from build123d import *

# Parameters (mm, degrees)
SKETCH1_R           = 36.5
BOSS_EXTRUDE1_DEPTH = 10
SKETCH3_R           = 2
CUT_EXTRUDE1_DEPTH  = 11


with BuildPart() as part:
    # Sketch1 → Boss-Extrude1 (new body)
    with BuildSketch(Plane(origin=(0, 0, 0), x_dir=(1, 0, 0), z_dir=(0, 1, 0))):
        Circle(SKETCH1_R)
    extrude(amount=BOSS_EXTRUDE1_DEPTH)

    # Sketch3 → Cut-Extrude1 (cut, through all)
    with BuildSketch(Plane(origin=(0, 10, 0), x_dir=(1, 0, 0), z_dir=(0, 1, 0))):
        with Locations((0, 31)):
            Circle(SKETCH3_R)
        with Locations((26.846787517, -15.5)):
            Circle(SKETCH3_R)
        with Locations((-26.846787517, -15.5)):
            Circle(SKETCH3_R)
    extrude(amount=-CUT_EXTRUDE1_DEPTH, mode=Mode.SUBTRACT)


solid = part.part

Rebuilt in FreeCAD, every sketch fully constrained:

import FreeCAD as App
import Part
import Sketcher

V = App.Vector
Q = App.Units.Quantity

doc = App.newDocument("Part")
body = doc.addObject("PartDesign::Body", "Body")

# Sketch on XZ plane
sketch1 = body.newObject("Sketcher::SketchObject", "Sketch")
sketch1.AttachmentSupport = (doc.getObject("XZ_Plane"), [""])
sketch1.MapMode = "FlatFace"
sketch1.addGeometry(Part.Circle(V(0, 0, 0), V(0, 0, 1), 36.5), False)
sketch1.addConstraint(Sketcher.Constraint("Coincident", 0, 3, -1, 1))
sketch1.addConstraint(Sketcher.Constraint("Diameter", 0, Q("73 mm")))
pad1 = body.newObject("PartDesign::Pad", "Pad")
pad1.Profile = sketch1
pad1.Length = 10
pad1.Reversed = True

# Sketch on XZ plane
sketch2 = body.newObject("Sketcher::SketchObject", "Sketch001")
sketch2.AttachmentSupport = (doc.getObject("XZ_Plane"), [""])
sketch2.MapMode = "FlatFace"
sketch2.AttachmentOffset = App.Placement(V(0, 0, -10), App.Rotation())
sketch2.addGeometry(Part.Circle(V(0, -31, 0), V(0, 0, 1), 2), False)
sketch2.addGeometry(Part.Circle(V(26.846788, 15.5, 0), V(0, 0, 1), 2), False)
sketch2.addGeometry(Part.Circle(V(-26.846788, 15.5, 0), V(0, 0, 1), 2), False)
sketch2.addConstraint(Sketcher.Constraint("Equal", 0, 1))
sketch2.addConstraint(Sketcher.Constraint("Equal", 1, 2))
sketch2.addConstraint(Sketcher.Constraint("Symmetric", 1, 3, 2, 3, -2))
sketch2.addConstraint(Sketcher.Constraint("PointOnObject", 0, 3, -2))
sketch2.addConstraint(Sketcher.Constraint("Diameter", 0, Q("4 mm")))
sketch2.addConstraint(Sketcher.Constraint("DistanceY", 0, 3, -1, 1, Q("31 mm")))
sketch2.addConstraint(Sketcher.Constraint("DistanceY", -1, 1, 1, 3, Q("15.5 mm")))
sketch2.addConstraint(Sketcher.Constraint("DistanceX", -1, 1, 1, 3, Q("26.846788 mm")))
pocket1 = body.newObject("PartDesign::Pocket", "Pocket")
pocket1.Profile = sketch2
pocket1.Type = "ThroughAll"
pocket1.Reversed = True

doc.recompute()
